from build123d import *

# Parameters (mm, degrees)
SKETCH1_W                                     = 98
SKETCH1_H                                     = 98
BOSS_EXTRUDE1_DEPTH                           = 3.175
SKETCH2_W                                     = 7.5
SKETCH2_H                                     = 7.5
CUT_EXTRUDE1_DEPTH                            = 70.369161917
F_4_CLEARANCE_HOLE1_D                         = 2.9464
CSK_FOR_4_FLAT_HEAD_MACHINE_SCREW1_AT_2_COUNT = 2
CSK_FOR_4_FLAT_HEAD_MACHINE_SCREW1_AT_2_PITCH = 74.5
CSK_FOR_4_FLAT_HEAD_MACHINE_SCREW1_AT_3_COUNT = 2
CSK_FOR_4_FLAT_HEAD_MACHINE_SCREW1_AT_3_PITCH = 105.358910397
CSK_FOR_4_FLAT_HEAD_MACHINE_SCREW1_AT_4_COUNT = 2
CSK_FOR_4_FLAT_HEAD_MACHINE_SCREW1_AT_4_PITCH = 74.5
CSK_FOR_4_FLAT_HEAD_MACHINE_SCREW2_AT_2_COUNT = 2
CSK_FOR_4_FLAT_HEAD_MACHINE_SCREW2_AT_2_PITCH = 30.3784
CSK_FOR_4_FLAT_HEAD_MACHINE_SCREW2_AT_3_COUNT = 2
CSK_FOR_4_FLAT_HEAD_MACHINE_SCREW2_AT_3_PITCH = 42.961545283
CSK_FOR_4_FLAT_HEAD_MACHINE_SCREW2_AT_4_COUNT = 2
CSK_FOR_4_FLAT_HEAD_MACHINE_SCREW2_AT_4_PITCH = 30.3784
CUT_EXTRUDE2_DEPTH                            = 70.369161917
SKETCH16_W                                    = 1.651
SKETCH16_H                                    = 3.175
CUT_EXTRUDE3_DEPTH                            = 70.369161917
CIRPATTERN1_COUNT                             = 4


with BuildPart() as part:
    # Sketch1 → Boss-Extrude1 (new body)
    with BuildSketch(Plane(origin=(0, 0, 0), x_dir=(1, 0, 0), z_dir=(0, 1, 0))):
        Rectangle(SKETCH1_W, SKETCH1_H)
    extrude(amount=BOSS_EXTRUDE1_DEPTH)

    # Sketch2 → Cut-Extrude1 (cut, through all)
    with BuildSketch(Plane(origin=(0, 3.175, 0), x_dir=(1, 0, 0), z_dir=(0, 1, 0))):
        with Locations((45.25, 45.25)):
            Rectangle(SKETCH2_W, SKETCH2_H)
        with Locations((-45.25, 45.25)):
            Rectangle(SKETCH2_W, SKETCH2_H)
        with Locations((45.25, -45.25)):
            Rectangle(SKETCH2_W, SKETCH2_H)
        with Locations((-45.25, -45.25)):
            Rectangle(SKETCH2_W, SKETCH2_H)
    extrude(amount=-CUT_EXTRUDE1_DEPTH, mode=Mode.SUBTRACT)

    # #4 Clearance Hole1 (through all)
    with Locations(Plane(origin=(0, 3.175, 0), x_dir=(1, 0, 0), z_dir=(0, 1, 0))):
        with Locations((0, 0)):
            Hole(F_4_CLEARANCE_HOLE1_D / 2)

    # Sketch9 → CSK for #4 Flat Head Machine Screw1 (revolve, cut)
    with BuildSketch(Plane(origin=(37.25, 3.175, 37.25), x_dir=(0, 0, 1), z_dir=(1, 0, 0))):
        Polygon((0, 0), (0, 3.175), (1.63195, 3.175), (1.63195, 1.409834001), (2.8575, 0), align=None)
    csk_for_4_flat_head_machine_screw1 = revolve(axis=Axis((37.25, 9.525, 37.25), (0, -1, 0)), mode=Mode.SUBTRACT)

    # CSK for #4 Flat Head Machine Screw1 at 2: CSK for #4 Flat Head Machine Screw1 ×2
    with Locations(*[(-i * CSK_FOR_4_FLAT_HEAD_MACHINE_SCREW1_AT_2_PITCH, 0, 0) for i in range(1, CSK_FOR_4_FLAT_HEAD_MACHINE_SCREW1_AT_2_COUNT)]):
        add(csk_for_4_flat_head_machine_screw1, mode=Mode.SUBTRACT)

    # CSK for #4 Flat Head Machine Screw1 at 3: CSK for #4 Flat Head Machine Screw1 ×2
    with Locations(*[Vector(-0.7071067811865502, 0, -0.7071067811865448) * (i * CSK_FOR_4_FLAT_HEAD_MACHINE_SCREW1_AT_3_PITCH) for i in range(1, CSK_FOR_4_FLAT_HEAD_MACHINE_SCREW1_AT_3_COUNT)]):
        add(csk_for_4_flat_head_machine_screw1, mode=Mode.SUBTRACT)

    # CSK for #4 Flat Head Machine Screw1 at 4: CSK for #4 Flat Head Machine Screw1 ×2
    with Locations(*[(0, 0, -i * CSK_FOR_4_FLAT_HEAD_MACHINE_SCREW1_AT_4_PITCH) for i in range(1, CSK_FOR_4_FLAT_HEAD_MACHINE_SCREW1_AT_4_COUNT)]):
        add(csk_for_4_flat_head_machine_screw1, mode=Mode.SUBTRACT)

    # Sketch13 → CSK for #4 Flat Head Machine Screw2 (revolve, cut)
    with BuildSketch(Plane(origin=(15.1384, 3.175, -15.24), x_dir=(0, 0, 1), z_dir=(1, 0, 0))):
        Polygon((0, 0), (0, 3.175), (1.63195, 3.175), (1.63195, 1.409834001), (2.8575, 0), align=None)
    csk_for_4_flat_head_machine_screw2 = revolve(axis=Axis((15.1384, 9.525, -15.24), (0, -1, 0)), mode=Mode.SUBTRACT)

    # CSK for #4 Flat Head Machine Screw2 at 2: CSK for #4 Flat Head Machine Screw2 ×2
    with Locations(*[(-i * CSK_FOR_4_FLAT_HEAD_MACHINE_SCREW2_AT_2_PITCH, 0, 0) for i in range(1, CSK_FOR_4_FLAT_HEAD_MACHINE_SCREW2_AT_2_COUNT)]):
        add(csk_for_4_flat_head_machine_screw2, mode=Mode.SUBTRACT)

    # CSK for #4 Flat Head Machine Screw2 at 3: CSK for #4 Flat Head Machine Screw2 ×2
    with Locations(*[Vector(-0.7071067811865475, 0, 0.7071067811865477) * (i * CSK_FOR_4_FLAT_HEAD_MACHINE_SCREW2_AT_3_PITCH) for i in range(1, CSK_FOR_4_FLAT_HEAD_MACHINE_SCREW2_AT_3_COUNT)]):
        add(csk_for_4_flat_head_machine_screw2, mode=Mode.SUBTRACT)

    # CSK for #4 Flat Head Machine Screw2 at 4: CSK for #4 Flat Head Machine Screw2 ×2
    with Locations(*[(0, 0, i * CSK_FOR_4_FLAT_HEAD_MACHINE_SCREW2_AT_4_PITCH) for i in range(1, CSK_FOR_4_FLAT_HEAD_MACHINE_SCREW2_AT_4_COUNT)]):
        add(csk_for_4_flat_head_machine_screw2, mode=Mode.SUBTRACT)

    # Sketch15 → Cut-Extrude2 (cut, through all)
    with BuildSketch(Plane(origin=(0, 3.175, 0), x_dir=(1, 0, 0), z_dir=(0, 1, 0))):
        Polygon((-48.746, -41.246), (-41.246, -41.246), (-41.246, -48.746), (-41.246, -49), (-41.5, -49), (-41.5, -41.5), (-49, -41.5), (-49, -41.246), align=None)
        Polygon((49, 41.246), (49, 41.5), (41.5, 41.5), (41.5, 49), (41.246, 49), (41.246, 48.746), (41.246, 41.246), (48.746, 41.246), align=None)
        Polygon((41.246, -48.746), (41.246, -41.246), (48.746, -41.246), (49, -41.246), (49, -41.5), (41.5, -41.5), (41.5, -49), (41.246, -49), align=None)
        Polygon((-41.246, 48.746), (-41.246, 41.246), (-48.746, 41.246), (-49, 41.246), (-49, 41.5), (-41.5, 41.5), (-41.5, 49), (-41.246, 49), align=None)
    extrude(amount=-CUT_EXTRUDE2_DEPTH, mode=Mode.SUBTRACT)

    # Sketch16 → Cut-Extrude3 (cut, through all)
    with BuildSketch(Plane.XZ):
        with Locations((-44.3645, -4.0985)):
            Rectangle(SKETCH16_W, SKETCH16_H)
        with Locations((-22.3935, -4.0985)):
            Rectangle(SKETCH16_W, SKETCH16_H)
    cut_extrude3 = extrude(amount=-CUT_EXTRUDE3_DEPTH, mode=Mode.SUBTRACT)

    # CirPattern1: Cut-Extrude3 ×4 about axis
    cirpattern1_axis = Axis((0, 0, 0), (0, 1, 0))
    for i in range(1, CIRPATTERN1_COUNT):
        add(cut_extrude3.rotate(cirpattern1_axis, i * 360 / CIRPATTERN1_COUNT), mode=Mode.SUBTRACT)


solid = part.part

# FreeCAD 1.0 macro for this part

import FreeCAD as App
import Part
import Sketcher
Q = App.Units.Quantity

doc = App.newDocument("Part")
body = doc.addObject("PartDesign::Body", "Body")

sketch1 = body.newObject("Sketcher::SketchObject", "Sketch")
sketch1.AttachmentSupport = (doc.getObject("XZ_Plane"), [""])
sketch1.MapMode = "FlatFace"
sketch1.addGeometry(Part.LineSegment(App.Vector(-49, -49, 0), App.Vector(-49, 49, 0)), False)
sketch1.addGeometry(Part.LineSegment(App.Vector(-49, 49, 0), App.Vector(49, 49, 0)), False)
sketch1.addGeometry(Part.LineSegment(App.Vector(49, 49, 0), App.Vector(49, -49, 0)), False)
sketch1.addGeometry(Part.LineSegment(App.Vector(49, -49, 0), App.Vector(-49, -49, 0)), False)
sketch1.addConstraint(Sketcher.Constraint("Coincident", 0, 2, 1, 1))
sketch1.addConstraint(Sketcher.Constraint("Coincident", 1, 2, 2, 1))
sketch1.addConstraint(Sketcher.Constraint("Coincident", 2, 2, 3, 1))
sketch1.addConstraint(Sketcher.Constraint("Coincident", 3, 2, 0, 1))
sketch1.addConstraint(Sketcher.Constraint("Vertical", 0))
sketch1.addConstraint(Sketcher.Constraint("Horizontal", 1))
sketch1.addConstraint(Sketcher.Constraint("Vertical", 2))
sketch1.addConstraint(Sketcher.Constraint("Horizontal", 3))
sketch1.addConstraint(Sketcher.Constraint("Symmetric", 0, 2, 2, 2, -1, 1))
sketch1.addConstraint(Sketcher.Constraint("Equal", 3, 0))
sketch1.addConstraint(Sketcher.Constraint("DistanceX", 1, 1, 1, 2, Q("98 mm")))
pad1 = body.newObject("PartDesign::Pad", "Pad")
pad1.Profile = sketch1
pad1.Length = Q("0.125 in")
pad1.Reversed = True

sketch2 = body.newObject("Sketcher::SketchObject", "Sketch001")
sketch2.AttachmentSupport = (doc.getObject("XZ_Plane"), [""])
sketch2.MapMode = "FlatFace"
sketch2.AttachmentOffset = App.Placement(App.Vector(0, 0, -0.125 * 25.4), App.Rotation())
sketch2.addGeometry(Part.LineSegment(App.Vector(42, -49, 0), App.Vector(42, -42, 0)), False)
sketch2.addGeometry(Part.LineSegment(App.Vector(42, -42, 0), App.Vector(49, -42, 0)), False)
sketch2.addGeometry(Part.LineSegment(App.Vector(49, -42, 0), App.Vector(49, -49, 0)), False)
sketch2.addGeometry(Part.LineSegment(App.Vector(49, -49, 0), App.Vector(42, -49, 0)), False)
sketch2.addGeometry(Part.LineSegment(App.Vector(-49, -49, 0), App.Vector(-49, -42, 0)), False)
sketch2.addGeometry(Part.LineSegment(App.Vector(-49, -42, 0), App.Vector(-42, -42, 0)), False)
sketch2.addGeometry(Part.LineSegment(App.Vector(-42, -42, 0), App.Vector(-42, -49, 0)), False)
sketch2.addGeometry(Part.LineSegment(App.Vector(-42, -49, 0), App.Vector(-49, -49, 0)), False)
sketch2.addGeometry(Part.LineSegment(App.Vector(42, 42, 0), App.Vector(42, 49, 0)), False)
sketch2.addGeometry(Part.LineSegment(App.Vector(42, 49, 0), App.Vector(49, 49, 0)), False)
sketch2.addGeometry(Part.LineSegment(App.Vector(49, 49, 0), App.Vector(49, 42, 0)), False)
sketch2.addGeometry(Part.LineSegment(App.Vector(49, 42, 0), App.Vector(42, 42, 0)), False)
sketch2.addGeometry(Part.LineSegment(App.Vector(-49, 42, 0), App.Vector(-49, 49, 0)), False)
sketch2.addGeometry(Part.LineSegment(App.Vector(-49, 49, 0), App.Vector(-42, 49, 0)), False)
sketch2.addGeometry(Part.LineSegment(App.Vector(-42, 49, 0), App.Vector(-42, 42, 0)), False)
sketch2.addGeometry(Part.LineSegment(App.Vector(-42, 42, 0), App.Vector(-49, 42, 0)), False)
sketch2.addConstraint(Sketcher.Constraint("Coincident", 0, 2, 1, 1))
sketch2.addConstraint(Sketcher.Constraint("Coincident", 1, 2, 2, 1))
sketch2.addConstraint(Sketcher.Constraint("Coincident", 2, 2, 3, 1))
sketch2.addConstraint(Sketcher.Constraint("Coincident", 3, 2, 0, 1))
sketch2.addConstraint(Sketcher.Constraint("Coincident", 4, 2, 5, 1))
sketch2.addConstraint(Sketcher.Constraint("Coincident", 5, 2, 6, 1))
sketch2.addConstraint(Sketcher.Constraint("Coincident", 6, 2, 7, 1))
sketch2.addConstraint(Sketcher.Constraint("Coincident", 7, 2, 4, 1))
sketch2.addConstraint(Sketcher.Constraint("Coincident", 8, 2, 9, 1))
sketch2.addConstraint(Sketcher.Constraint("Coincident", 9, 2, 10, 1))
sketch2.addConstraint(Sketcher.Constraint("Coincident", 10, 2, 11, 1))
sketch2.addConstraint(Sketcher.Constraint("Coincident", 11, 2, 8, 1))
sketch2.addConstraint(Sketcher.Constraint("Coincident", 12, 2, 13, 1))
sketch2.addConstraint(Sketcher.Constraint("Coincident", 13, 2, 14, 1))
sketch2.addConstraint(Sketcher.Constraint("Coincident", 14, 2, 15, 1))
sketch2.addConstraint(Sketcher.Constraint("Coincident", 15, 2, 12, 1))
sketch2.addConstraint(Sketcher.Constraint("Vertical", 0))
sketch2.addConstraint(Sketcher.Constraint("Horizontal", 1))
sketch2.addConstraint(Sketcher.Constraint("Vertical", 2))
sketch2.addConstraint(Sketcher.Constraint("Horizontal", 3))
sketch2.addConstraint(Sketcher.Constraint("Vertical", 4))
sketch2.addConstraint(Sketcher.Constraint("Horizontal", 5))
sketch2.addConstraint(Sketcher.Constraint("Vertical", 6))
sketch2.addConstraint(Sketcher.Constraint("Horizontal", 7))
sketch2.addConstraint(Sketcher.Constraint("Vertical", 8))
sketch2.addConstraint(Sketcher.Constraint("Horizontal", 9))
sketch2.addConstraint(Sketcher.Constraint("Vertical", 10))
sketch2.addConstraint(Sketcher.Constraint("Horizontal", 11))
sketch2.addConstraint(Sketcher.Constraint("Vertical", 12))
sketch2.addConstraint(Sketcher.Constraint("Horizontal", 13))
sketch2.addConstraint(Sketcher.Constraint("Vertical", 14))
sketch2.addConstraint(Sketcher.Constraint("Horizontal", 15))
sketch2.addConstraint(Sketcher.Constraint("Symmetric", 6, 2, 8, 2, -1, 1))
sketch2.addConstraint(Sketcher.Constraint("Symmetric", 4, 2, 10, 2, -1, 1))
sketch2.addConstraint(Sketcher.Constraint("Symmetric", 2, 2, 12, 2, -1, 1))
sketch2.addConstraint(Sketcher.Constraint("Symmetric", 0, 2, 14, 2, -1, 1))
sketch2.addConstraint(Sketcher.Constraint("Symmetric", 1, 2, 4, 2, -2))
sketch2.addConstraint(Sketcher.Constraint("Symmetric", 3, 2, 6, 2, -2))
sketch2.addConstraint(Sketcher.Constraint("Equal", 15, 0))
sketch2.addConstraint(Sketcher.Constraint("DistanceX", 1, 1, 1, 2, Q("7.5 mm")))
sketch2.addConstraint(Sketcher.Constraint("DistanceX", -1, 1, 0, 2, Q("41.5 mm")))
sketch2.addConstraint(Sketcher.Constraint("DistanceY", 0, 2, -1, 1, Q("41.5 mm")))
pocket1 = body.newObject("PartDesign::Pocket", "Pocket")
pocket1.Profile = sketch2
pocket1.Type = "ThroughAll"
pocket1.Reversed = True

sketch3 = body.newObject("Sketcher::SketchObject", "Sketch002")
sketch3.AttachmentSupport = (doc.getObject("XZ_Plane"), [""])
sketch3.MapMode = "FlatFace"
sketch3.AttachmentOffset = App.Placement(App.Vector(0, 0, -0.125 * 25.4), App.Rotation())
sketch3.addGeometry(Part.Circle(App.Vector(0, 0, 0), App.Vector(0, 0, 1), 1.5), False)
sketch3.addConstraint(Sketcher.Constraint("Coincident", 0, 3, -1, 1))
sketch3.addConstraint(Sketcher.Constraint("Diameter", 0, Q("0.116 in")))
doc.recompute()
hole = body.newObject("PartDesign::Hole", "Hole")
hole.Profile = sketch3
hole.ThreadType = "None"
hole.Diameter = Q("0.116 in")
hole.DepthType = "ThroughAll"
hole.Reversed = True

sketch4 = body.newObject("Sketcher::SketchObject", "Sketch003")
sketch4.AttachmentSupport = (doc.getObject("YZ_Plane"), [""])
sketch4.MapMode = "FlatFace"
sketch4.AttachmentOffset = App.Placement(App.Vector(0, 0, 37.25), App.Rotation())
sketch4.addGeometry(Part.LineSegment(App.Vector(0, 37.2, 0), App.Vector(3.2, 37.2, 0)), False)
sketch4.addGeometry(Part.LineSegment(App.Vector(3.2, 37.2, 0), App.Vector(3.2, 40.1, 0)), False)
sketch4.addGeometry(Part.LineSegment(App.Vector(3.2, 40.1, 0), App.Vector(1.8, 38.9, 0)), False)
sketch4.addGeometry(Part.LineSegment(App.Vector(1.8, 38.9, 0), App.Vector(0, 38.9, 0)), False)
sketch4.addGeometry(Part.LineSegment(App.Vector(0, 38.9, 0), App.Vector(0, 37.2, 0)), False)
sketch4.addGeometry(Part.LineSegment(App.Vector(3.2, 37.2, 0), App.Vector(0, 37.2, 0)), True)
sketch4.addConstraint(Sketcher.Constraint("Coincident", 0, 2, 1, 1))
sketch4.addConstraint(Sketcher.Constraint("Coincident", 1, 2, 2, 1))
sketch4.addConstraint(Sketcher.Constraint("Coincident", 2, 2, 3, 1))
sketch4.addConstraint(Sketcher.Constraint("Coincident", 3, 2, 4, 1))
sketch4.addConstraint(Sketcher.Constraint("Coincident", 4, 2, 0, 1))
sketch4.addConstraint(Sketcher.Constraint("Horizontal", 0))
sketch4.addConstraint(Sketcher.Constraint("Vertical", 1))
sketch4.addConstraint(Sketcher.Constraint("Horizontal", 3))
sketch4.addConstraint(Sketcher.Constraint("Vertical", 4))
sketch4.addConstraint(Sketcher.Constraint("Horizontal", 5))
sketch4.addConstraint(Sketcher.Constraint("Coincident", 5, 1, 0, 2))
sketch4.addConstraint(Sketcher.Constraint("PointOnObject", 3, 2, -2))
sketch4.addConstraint(Sketcher.Constraint("PointOnObject", 5, 2, -2))
sketch4.addConstraint(Sketcher.Constraint("Angle", 2, Q("-139 deg")))
sketch4.addConstraint(Sketcher.Constraint("DistanceX", 0, 1, 0, 2, Q("0.125 in")))
sketch4.addConstraint(Sketcher.Constraint("DistanceY", 1, 1, 1, 2, Q("0.1125 in")))
sketch4.addConstraint(Sketcher.Constraint("DistanceY", 4, 2, 4, 1, Q("1.63195 mm")))
sketch4.addConstraint(Sketcher.Constraint("DistanceY", -1, 1, 0, 2, Q("37.25 mm")))
groove = body.newObject("PartDesign::Groove", "Groove")
groove.Profile = sketch4
groove.ReferenceAxis = (sketch4, ["Axis0"])
groove.Angle = 360
doc.recompute()

linearpattern = body.newObject("PartDesign::LinearPattern", "LinearPattern")
linearpattern.Originals = [groove]
linearpattern.Direction = (doc.getObject("X_Axis"), [""])
linearpattern.Mode = "offset"
linearpattern.Offset = 74.5
linearpattern.Occurrences = 2
linearpattern.Reversed = True
body.Tip = linearpattern
doc.recompute()

datumline = body.newObject("PartDesign::Line", "DatumLine")
datumline.Placement = App.Placement(App.Vector(0, 0, 0), App.Rotation(App.Vector(0, 0, 1), App.Vector(-0.707106781, 0, -0.707106781)))
linearpattern2 = body.newObject("PartDesign::LinearPattern", "LinearPattern001")
linearpattern2.Originals = [groove]
linearpattern2.Direction = (datumline, [""])
linearpattern2.Mode = "offset"
linearpattern2.Offset = 105.35891
linearpattern2.Occurrences = 2
body.Tip = linearpattern2
doc.recompute()

linearpattern3 = body.newObject("PartDesign::LinearPattern", "LinearPattern002")
linearpattern3.Originals = [groove]
linearpattern3.Direction = (doc.getObject("Z_Axis"), [""])
linearpattern3.Mode = "offset"
linearpattern3.Offset = 74.5
linearpattern3.Occurrences = 2
linearpattern3.Reversed = True
body.Tip = linearpattern3

sketch5 = body.newObject("Sketcher::SketchObject", "Sketch004")
sketch5.AttachmentSupport = (doc.getObject("YZ_Plane"), [""])
sketch5.MapMode = "FlatFace"
sketch5.AttachmentOffset = App.Placement(App.Vector(0, 0, 0.596 * 25.4), App.Rotation())
sketch5.addGeometry(Part.LineSegment(App.Vector(0, -15.2, 0), App.Vector(3.2, -15.2, 0)), False)
sketch5.addGeometry(Part.LineSegment(App.Vector(3.2, -15.2, 0), App.Vector(3.2, -12.4, 0)), False)
sketch5.addGeometry(Part.LineSegment(App.Vector(3.2, -12.4, 0), App.Vector(1.8, -13.6, 0)), False)
sketch5.addGeometry(Part.LineSegment(App.Vector(1.8, -13.6, 0), App.Vector(0, -13.6, 0)), False)
sketch5.addGeometry(Part.LineSegment(App.Vector(0, -13.6, 0), App.Vector(0, -15.2, 0)), False)
sketch5.addGeometry(Part.LineSegment(App.Vector(3.2, -15.2, 0), App.Vector(0, -15.2, 0)), True)
sketch5.addConstraint(Sketcher.Constraint("Coincident", 0, 2, 1, 1))
sketch5.addConstraint(Sketcher.Constraint("Coincident", 1, 2, 2, 1))
sketch5.addConstraint(Sketcher.Constraint("Coincident", 2, 2, 3, 1))
sketch5.addConstraint(Sketcher.Constraint("Coincident", 3, 2, 4, 1))
sketch5.addConstraint(Sketcher.Constraint("Coincident", 4, 2, 0, 1))
sketch5.addConstraint(Sketcher.Constraint("Horizontal", 0))
sketch5.addConstraint(Sketcher.Constraint("Vertical", 1))
sketch5.addConstraint(Sketcher.Constraint("Horizontal", 3))
sketch5.addConstraint(Sketcher.Constraint("Vertical", 4))
sketch5.addConstraint(Sketcher.Constraint("Horizontal", 5))
sketch5.addConstraint(Sketcher.Constraint("Coincident", 5, 1, 0, 2))
sketch5.addConstraint(Sketcher.Constraint("PointOnObject", 3, 2, -2))
sketch5.addConstraint(Sketcher.Constraint("PointOnObject", 5, 2, -2))
sketch5.addConstraint(Sketcher.Constraint("Angle", 2, Q("-139 deg")))
sketch5.addConstraint(Sketcher.Constraint("DistanceY", 0, 2, -1, 1, Q("0.6 in")))
sketch5.addConstraint(Sketcher.Constraint("DistanceX", 0, 1, 0, 2, Q("0.125 in")))
sketch5.addConstraint(Sketcher.Constraint("DistanceY", 1, 1, 1, 2, Q("0.1125 in")))
sketch5.addConstraint(Sketcher.Constraint("DistanceY", 4, 2, 4, 1, Q("1.63195 mm")))
groove2 = body.newObject("PartDesign::Groove", "Groove001")
groove2.Profile = sketch5
groove2.ReferenceAxis = (sketch5, ["Axis0"])
groove2.Angle = 360
doc.recompute()

linearpattern4 = body.newObject("PartDesign::LinearPattern", "LinearPattern003")
linearpattern4.Originals = [groove2]
linearpattern4.Direction = (doc.getObject("X_Axis"), [""])
linearpattern4.Mode = "offset"
linearpattern4.Offset = Q("1.196 in")
linearpattern4.Occurrences = 2
linearpattern4.Reversed = True
body.Tip = linearpattern4
doc.recompute()

datumline2 = body.newObject("PartDesign::Line", "DatumLine001")
datumline2.Placement = App.Placement(App.Vector(0, 0, 0), App.Rotation(App.Vector(0, 0, 1), App.Vector(-0.707106781, 0, 0.707106781)))
linearpattern5 = body.newObject("PartDesign::LinearPattern", "LinearPattern004")
linearpattern5.Originals = [groove2]
linearpattern5.Direction = (datumline2, [""])
linearpattern5.Mode = "offset"
linearpattern5.Offset = 42.961545
linearpattern5.Occurrences = 2
body.Tip = linearpattern5
doc.recompute()

linearpattern6 = body.newObject("PartDesign::LinearPattern", "LinearPattern005")
linearpattern6.Originals = [groove2]
linearpattern6.Direction = (doc.getObject("Z_Axis"), [""])
linearpattern6.Mode = "offset"
linearpattern6.Offset = Q("1.196 in")
linearpattern6.Occurrences = 2
body.Tip = linearpattern6

sketch6 = body.newObject("Sketcher::SketchObject", "Sketch005")
sketch6.AttachmentSupport = (doc.getObject("XZ_Plane"), [""])
sketch6.MapMode = "FlatFace"
sketch6.AttachmentOffset = App.Placement(App.Vector(0, 0, -0.125 * 25.4), App.Rotation())
sketch6.addGeometry(Part.LineSegment(App.Vector(-41.25, 41.25, 0), App.Vector(-49, 41.25, 0)), False)
sketch6.addGeometry(Part.LineSegment(App.Vector(-49, 41.25, 0), App.Vector(-49, 41.5, 0)), False)
sketch6.addGeometry(Part.LineSegment(App.Vector(-49, 41.5, 0), App.Vector(-41.5, 41.5, 0)), False)
sketch6.addGeometry(Part.LineSegment(App.Vector(-41.5, 41.5, 0), App.Vector(-41.5, 49, 0)), False)
sketch6.addGeometry(Part.LineSegment(App.Vector(-41.5, 49, 0), App.Vector(-41.25, 49, 0)), False)
sketch6.addGeometry(Part.LineSegment(App.Vector(-41.25, 49, 0), App.Vector(-41.25, 41.25, 0)), False)
sketch6.addGeometry(Part.LineSegment(App.Vector(49, -41.25, 0), App.Vector(49, -41.5, 0)), False)
sketch6.addGeometry(Part.LineSegment(App.Vector(49, -41.5, 0), App.Vector(41.5, -41.5, 0)), False)
sketch6.addGeometry(Part.LineSegment(App.Vector(41.5, -41.5, 0), App.Vector(41.5, -49, 0)), False)
sketch6.addGeometry(Part.LineSegment(App.Vector(41.5, -49, 0), App.Vector(41.25, -49, 0)), False)
sketch6.addGeometry(Part.LineSegment(App.Vector(41.25, -49, 0), App.Vector(41.25, -41.25, 0)), False)
sketch6.addGeometry(Part.LineSegment(App.Vector(41.25, -41.25, 0), App.Vector(49, -41.25, 0)), False)
sketch6.addGeometry(Part.LineSegment(App.Vector(41.25, 41.25, 0), App.Vector(41.25, 49, 0)), False)
sketch6.addGeometry(Part.LineSegment(App.Vector(41.25, 49, 0), App.Vector(41.5, 49, 0)), False)
sketch6.addGeometry(Part.LineSegment(App.Vector(41.5, 49, 0), App.Vector(41.5, 41.5, 0)), False)
sketch6.addGeometry(Part.LineSegment(App.Vector(41.5, 41.5, 0), App.Vector(49, 41.5, 0)), False)
sketch6.addGeometry(Part.LineSegment(App.Vector(49, 41.5, 0), App.Vector(49, 41.25, 0)), False)
sketch6.addGeometry(Part.LineSegment(App.Vector(49, 41.25, 0), App.Vector(41.25, 41.25, 0)), False)
sketch6.addGeometry(Part.LineSegment(App.Vector(-41.25, -41.25, 0), App.Vector(-41.25, -49, 0)), False)
sketch6.addGeometry(Part.LineSegment(App.Vector(-41.25, -49, 0), App.Vector(-41.5, -49, 0)), False)
sketch6.addGeometry(Part.LineSegment(App.Vector(-41.5, -49, 0), App.Vector(-41.5, -41.5, 0)), False)
sketch6.addGeometry(Part.LineSegment(App.Vector(-41.5, -41.5, 0), App.Vector(-49, -41.5, 0)), False)
sketch6.addGeometry(Part.LineSegment(App.Vector(-49, -41.5, 0), App.Vector(-49, -41.25, 0)), False)
sketch6.addGeometry(Part.LineSegment(App.Vector(-49, -41.25, 0), App.Vector(-41.25, -41.25, 0)), False)
sketch6.addConstraint(Sketcher.Constraint("Coincident", 0, 2, 1, 1))
sketch6.addConstraint(Sketcher.Constraint("Coincident", 1, 2, 2, 1))
sketch6.addConstraint(Sketcher.Constraint("Coincident", 2, 2, 3, 1))
sketch6.addConstraint(Sketcher.Constraint("Coincident", 3, 2, 4, 1))
sketch6.addConstraint(Sketcher.Constraint("Coincident", 4, 2, 5, 1))
sketch6.addConstraint(Sketcher.Constraint("Coincident", 5, 2, 0, 1))
sketch6.addConstraint(Sketcher.Constraint("Coincident", 6, 2, 7, 1))
sketch6.addConstraint(Sketcher.Constraint("Coincident", 7, 2, 8, 1))
sketch6.addConstraint(Sketcher.Constraint("Coincident", 8, 2, 9, 1))
sketch6.addConstraint(Sketcher.Constraint("Coincident", 9, 2, 10, 1))
sketch6.addConstraint(Sketcher.Constraint("Coincident", 10, 2, 11, 1))
sketch6.addConstraint(Sketcher.Constraint("Coincident", 11, 2, 6, 1))
sketch6.addConstraint(Sketcher.Constraint("Coincident", 12, 2, 13, 1))
sketch6.addConstraint(Sketcher.Constraint("Coincident", 13, 2, 14, 1))
sketch6.addConstraint(Sketcher.Constraint("Coincident", 14, 2, 15, 1))
sketch6.addConstraint(Sketcher.Constraint("Coincident", 15, 2, 16, 1))
sketch6.addConstraint(Sketcher.Constraint("Coincident", 16, 2, 17, 1))
sketch6.addConstraint(Sketcher.Constraint("Coincident", 17, 2, 12, 1))
sketch6.addConstraint(Sketcher.Constraint("Coincident", 18, 2, 19, 1))
sketch6.addConstraint(Sketcher.Constraint("Coincident", 19, 2, 20, 1))
sketch6.addConstraint(Sketcher.Constraint("Coincident", 20, 2, 21, 1))
sketch6.addConstraint(Sketcher.Constraint("Coincident", 21, 2, 22, 1))
sketch6.addConstraint(Sketcher.Constraint("Coincident", 22, 2, 23, 1))
sketch6.addConstraint(Sketcher.Constraint("Coincident", 23, 2, 18, 1))
sketch6.addConstraint(Sketcher.Constraint("Horizontal", 0))
sketch6.addConstraint(Sketcher.Constraint("Vertical", 1))
sketch6.addConstraint(Sketcher.Constraint("Horizontal", 2))
sketch6.addConstraint(Sketcher.Constraint("Vertical", 3))
sketch6.addConstraint(Sketcher.Constraint("Horizontal", 4))
sketch6.addConstraint(Sketcher.Constraint("Vertical", 5))
sketch6.addConstraint(Sketcher.Constraint("Vertical", 6))
sketch6.addConstraint(Sketcher.Constraint("Horizontal", 7))
sketch6.addConstraint(Sketcher.Constraint("Vertical", 8))
sketch6.addConstraint(Sketcher.Constraint("Horizontal", 9))
sketch6.addConstraint(Sketcher.Constraint("Vertical", 10))
sketch6.addConstraint(Sketcher.Constraint("Horizontal", 11))
sketch6.addConstraint(Sketcher.Constraint("Vertical", 12))
sketch6.addConstraint(Sketcher.Constraint("Horizontal", 13))
sketch6.addConstraint(Sketcher.Constraint("Vertical", 14))
sketch6.addConstraint(Sketcher.Constraint("Horizontal", 15))
sketch6.addConstraint(Sketcher.Constraint("Vertical", 16))
sketch6.addConstraint(Sketcher.Constraint("Horizontal", 17))
sketch6.addConstraint(Sketcher.Constraint("Vertical", 18))
sketch6.addConstraint(Sketcher.Constraint("Horizontal", 19))
sketch6.addConstraint(Sketcher.Constraint("Vertical", 20))
sketch6.addConstraint(Sketcher.Constraint("Horizontal", 21))
sketch6.addConstraint(Sketcher.Constraint("Vertical", 22))
sketch6.addConstraint(Sketcher.Constraint("Horizontal", 23))
sketch6.addConstraint(Sketcher.Constraint("Symmetric", 1, 2, 6, 2, -1, 1))
sketch6.addConstraint(Sketcher.Constraint("Symmetric", 3, 2, 8, 2, -1, 1))
sketch6.addConstraint(Sketcher.Constraint("Symmetric", 5, 2, 10, 2, -1, 1))
sketch6.addConstraint(Sketcher.Constraint("Symmetric", 12, 2, 18, 2, -1, 1))
sketch6.addConstraint(Sketcher.Constraint("Symmetric", 14, 2, 20, 2, -1, 1))
sketch6.addConstraint(Sketcher.Constraint("Symmetric", 16, 2, 22, 2, -1, 1))
sketch6.addConstraint(Sketcher.Constraint("Symmetric", 4, 2, 12, 2, -2))
sketch6.addConstraint(Sketcher.Constraint("Symmetric", 2, 2, 14, 2, -2))
sketch6.addConstraint(Sketcher.Constraint("Symmetric", 0, 2, 16, 2, -2))
sketch6.addConstraint(Sketcher.Constraint("Equal", 19, 1))
sketch6.addConstraint(Sketcher.Constraint("Equal", 21, 3))
sketch6.addConstraint(Sketcher.Constraint("DistanceX", 4, 1, 4, 2, Q("0.01 in")))
sketch6.addConstraint(Sketcher.Constraint("DistanceX", 0, 2, 0, 1, Q("7.754 mm")))
sketch6.addConstraint(Sketcher.Constraint("DistanceX", 0, 2, -1, 1, Q("49 mm")))
sketch6.addConstraint(Sketcher.Constraint("DistanceY", -1, 1, 0, 2, Q("41.246 mm")))
pocket2 = body.newObject("PartDesign::Pocket", "Pocket001")
pocket2.Profile = sketch6
pocket2.Type = "ThroughAll"
pocket2.Reversed = True

sketch7 = body.newObject("Sketcher::SketchObject", "Sketch006")
sketch7.AttachmentSupport = (doc.getObject("XZ_Plane"), [""])
sketch7.MapMode = "FlatFace"
sketch7.addGeometry(Part.LineSegment(App.Vector(-45.2, -2.5, 0), App.Vector(-45.2, -5.7, 0)), False)
sketch7.addGeometry(Part.LineSegment(App.Vector(-45.2, -5.7, 0), App.Vector(-43.5, -5.7, 0)), False)
sketch7.addGeometry(Part.LineSegment(App.Vector(-43.5, -5.7, 0), App.Vector(-43.5, -2.5, 0)), False)
sketch7.addGeometry(Part.LineSegment(App.Vector(-43.5, -2.5, 0), App.Vector(-45.2, -2.5, 0)), False)
sketch7.addGeometry(Part.LineSegment(App.Vector(-23.2, -2.5, 0), App.Vector(-23.2, -5.7, 0)), False)
sketch7.addGeometry(Part.LineSegment(App.Vector(-23.2, -5.7, 0), App.Vector(-21.6, -5.7, 0)), False)
sketch7.addGeometry(Part.LineSegment(App.Vector(-21.6, -5.7, 0), App.Vector(-21.6, -2.5, 0)), False)
sketch7.addGeometry(Part.LineSegment(App.Vector(-21.6, -2.5, 0), App.Vector(-23.2, -2.5, 0)), False)
sketch7.addConstraint(Sketcher.Constraint("Coincident", 0, 2, 1, 1))
sketch7.addConstraint(Sketcher.Constraint("Coincident", 1, 2, 2, 1))
sketch7.addConstraint(Sketcher.Constraint("Coincident", 2, 2, 3, 1))
sketch7.addConstraint(Sketcher.Constraint("Coincident", 3, 2, 0, 1))
sketch7.addConstraint(Sketcher.Constraint("Coincident", 4, 2, 5, 1))
sketch7.addConstraint(Sketcher.Constraint("Coincident", 5, 2, 6, 1))
sketch7.addConstraint(Sketcher.Constraint("Coincident", 6, 2, 7, 1))
sketch7.addConstraint(Sketcher.Constraint("Coincident", 7, 2, 4, 1))
sketch7.addConstraint(Sketcher.Constraint("Vertical", 0))
sketch7.addConstraint(Sketcher.Constraint("Horizontal", 1))
sketch7.addConstraint(Sketcher.Constraint("Vertical", 2))
sketch7.addConstraint(Sketcher.Constraint("Horizontal", 3))
sketch7.addConstraint(Sketcher.Constraint("Vertical", 4))
sketch7.addConstraint(Sketcher.Constraint("Horizontal", 5))
sketch7.addConstraint(Sketcher.Constraint("Vertical", 6))
sketch7.addConstraint(Sketcher.Constraint("Horizontal", 7))
sketch7.addConstraint(Sketcher.Constraint("Horizontal", 1, 2, 4, 2))
sketch7.addConstraint(Sketcher.Constraint("Horizontal", 3, 2, 6, 2))
sketch7.addConstraint(Sketcher.Constraint("Equal", 3, 5))
sketch7.addConstraint(Sketcher.Constraint("DistanceX", 1, 2, 4, 2, Q("0.8 in")))
sketch7.addConstraint(Sketcher.Constraint("DistanceX", 1, 1, 1, 2, Q("0.065 in")))
sketch7.addConstraint(Sketcher.Constraint("DistanceY", 0, 2, 0, 1, Q("0.125 in")))
sketch7.addConstraint(Sketcher.Constraint("DistanceX", 0, 2, -1, 1, Q("45.19 mm")))
sketch7.addConstraint(Sketcher.Constraint("DistanceY", 0, 2, -1, 1, Q("5.686 mm")))
pocket3 = body.newObject("PartDesign::Pocket", "Pocket002")
pocket3.Profile = sketch7
pocket3.Type = "ThroughAll"
doc.recompute()

polarpattern = body.newObject("PartDesign::PolarPattern", "PolarPattern")
polarpattern.Originals = [pocket3]
polarpattern.Axis = (doc.getObject("Y_Axis"), [""])
polarpattern.Angle = 360
polarpattern.Occurrences = 4
body.Tip = polarpattern

doc.recompute()
